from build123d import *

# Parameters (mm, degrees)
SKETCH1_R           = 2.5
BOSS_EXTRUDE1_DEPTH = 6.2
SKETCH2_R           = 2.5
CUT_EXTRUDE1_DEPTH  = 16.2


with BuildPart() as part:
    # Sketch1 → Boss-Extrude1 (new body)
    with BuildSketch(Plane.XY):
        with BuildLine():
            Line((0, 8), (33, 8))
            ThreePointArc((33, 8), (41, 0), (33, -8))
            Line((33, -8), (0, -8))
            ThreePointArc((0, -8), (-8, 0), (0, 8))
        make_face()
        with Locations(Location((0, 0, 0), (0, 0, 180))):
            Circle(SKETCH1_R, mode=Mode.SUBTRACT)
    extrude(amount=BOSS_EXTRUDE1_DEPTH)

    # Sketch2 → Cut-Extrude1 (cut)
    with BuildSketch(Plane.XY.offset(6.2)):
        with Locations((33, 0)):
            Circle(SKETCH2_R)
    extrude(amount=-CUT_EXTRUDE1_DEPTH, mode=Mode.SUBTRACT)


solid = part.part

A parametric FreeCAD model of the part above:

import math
import FreeCAD as App
import Part
import Sketcher

doc = App.newDocument("Part")
body = doc.addObject("PartDesign::Body", "Body")

# Sketch on XY plane
sketch1 = body.newObject("Sketcher::SketchObject", "Sketch")
sketch1.AttachmentSupport = (doc.getObject("XY_Plane"), [""])
sketch1.MapMode = "FlatFace"
sketch1.addGeometry([
    Part.LineSegment(App.Vector(33, 8, 0), App.Vector(0, 8, 0)),  # 0
    Part.ArcOfCircle(Part.Circle(App.Vector(0, 0, 0), App.Vector(0, 0, 1), 8), math.radians(90), math.radians(270)),  # 1
    Part.LineSegment(App.Vector(0, -8, 0), App.Vector(33, -8, 0)),  # 2
    Part.ArcOfCircle(Part.Circle(App.Vector(33, 0, 0), App.Vector(0, 0, 1), 8), math.radians(-90), math.radians(90)),  # 3
    Part.Circle(App.Vector(0, 0, 0), App.Vector(0, 0, 1), 2.5),  # 4
], False)
sketch1.addConstraint([
    Sketcher.Constraint("Tangent", 0, 2, 1, 1),
    Sketcher.Constraint("Tangent", 1, 2, 2, 1),
    Sketcher.Constraint("Tangent", 2, 2, 3, 1),
    Sketcher.Constraint("Tangent", 3, 2, 0, 1),
    Sketcher.Constraint("Horizontal", 0),
    Sketcher.Constraint("Horizontal", 2),
    Sketcher.Constraint("Coincident", 1, 3, -1, 1),
    Sketcher.Constraint("Coincident", 4, 3, -1, 1),
    Sketcher.Constraint("Diameter", 4, 5.0),
    Sketcher.Constraint("Radius", 1, 8.0),
    Sketcher.Constraint("DistanceX", 0, 2, 0, 1, 33.0),
])
pad1 = body.newObject("PartDesign::Pad", "Pad")
pad1.Profile = sketch1
pad1.Length = 6.2

# Sketch on XY plane
sketch2 = body.newObject("Sketcher::SketchObject", "Sketch001")
sketch2.AttachmentSupport = (doc.getObject("XY_Plane"), [""])
sketch2.MapMode = "FlatFace"
sketch2.AttachmentOffset = App.Placement(App.Vector(0, 0, 6.2), App.Rotation())
sketch2.addGeometry(Part.Circle(App.Vector(33, 0, 0), App.Vector(0, 0, 1), 2.5), False)
sketch2.addConstraint([
    Sketcher.Constraint("PointOnObject", 0, 3, -1),
    Sketcher.Constraint("Diameter", 0, 5.0),
    Sketcher.Constraint("DistanceX", -1, 1, 0, 3, 33.0),
])
pocket1 = body.newObject("PartDesign::Pocket", "Pocket")
pocket1.Profile = sketch2
pocket1.Length = 16.2

doc.recompute()
